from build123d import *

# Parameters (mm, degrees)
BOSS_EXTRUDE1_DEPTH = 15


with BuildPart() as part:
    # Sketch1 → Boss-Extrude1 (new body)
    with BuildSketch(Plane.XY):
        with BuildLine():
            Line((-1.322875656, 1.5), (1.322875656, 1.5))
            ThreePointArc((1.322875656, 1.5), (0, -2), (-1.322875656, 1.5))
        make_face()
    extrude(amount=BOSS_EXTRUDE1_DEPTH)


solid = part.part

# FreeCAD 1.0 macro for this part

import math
import FreeCAD as App
import Part
import Sketcher
from FreeCAD import Vector
Q = App.Units.Quantity

doc = App.newDocument("Part")
body = doc.addObject("PartDesign::Body", "Body")

sketch1 = body.newObject("Sketcher::SketchObject", "Sketch")
sketch1.AttachmentSupport = (doc.getObject("XY_Plane"), [""])
sketch1.MapMode = "FlatFace"
sketch1.addGeometry(Part.LineSegment(Vector(1.322876, 1.5, 0), Vector(-1.322876, 1.5, 0)), False)
sketch1.addGeometry(Part.ArcOfCircle(Part.Circle(Vector(0, 0, 0), Vector(0, 0, 1), 2), math.radians(131.409622), math.radians(408.590378)), False)
sketch1.addConstraint(Sketcher.Constraint("Coincident", 0, 1, 1, 2))
sketch1.addConstraint(Sketcher.Constraint("Coincident", 1, 1, 0, 2))
sketch1.addConstraint(Sketcher.Constraint("Horizontal", 0))
sketch1.addConstraint(Sketcher.Constraint("Coincident", 1, 3, -1, 1))
sketch1.addConstraint(Sketcher.Constraint("Radius", 1, Q("2 mm")))
sketch1.addConstraint(Sketcher.Constraint("DistanceY", -1, 1, 0, 1, Q("1.5 mm")))
pad1 = body.newObject("PartDesign::Pad", "Pad")
pad1.Profile = sketch1
pad1.Length = 15

doc.recompute()
